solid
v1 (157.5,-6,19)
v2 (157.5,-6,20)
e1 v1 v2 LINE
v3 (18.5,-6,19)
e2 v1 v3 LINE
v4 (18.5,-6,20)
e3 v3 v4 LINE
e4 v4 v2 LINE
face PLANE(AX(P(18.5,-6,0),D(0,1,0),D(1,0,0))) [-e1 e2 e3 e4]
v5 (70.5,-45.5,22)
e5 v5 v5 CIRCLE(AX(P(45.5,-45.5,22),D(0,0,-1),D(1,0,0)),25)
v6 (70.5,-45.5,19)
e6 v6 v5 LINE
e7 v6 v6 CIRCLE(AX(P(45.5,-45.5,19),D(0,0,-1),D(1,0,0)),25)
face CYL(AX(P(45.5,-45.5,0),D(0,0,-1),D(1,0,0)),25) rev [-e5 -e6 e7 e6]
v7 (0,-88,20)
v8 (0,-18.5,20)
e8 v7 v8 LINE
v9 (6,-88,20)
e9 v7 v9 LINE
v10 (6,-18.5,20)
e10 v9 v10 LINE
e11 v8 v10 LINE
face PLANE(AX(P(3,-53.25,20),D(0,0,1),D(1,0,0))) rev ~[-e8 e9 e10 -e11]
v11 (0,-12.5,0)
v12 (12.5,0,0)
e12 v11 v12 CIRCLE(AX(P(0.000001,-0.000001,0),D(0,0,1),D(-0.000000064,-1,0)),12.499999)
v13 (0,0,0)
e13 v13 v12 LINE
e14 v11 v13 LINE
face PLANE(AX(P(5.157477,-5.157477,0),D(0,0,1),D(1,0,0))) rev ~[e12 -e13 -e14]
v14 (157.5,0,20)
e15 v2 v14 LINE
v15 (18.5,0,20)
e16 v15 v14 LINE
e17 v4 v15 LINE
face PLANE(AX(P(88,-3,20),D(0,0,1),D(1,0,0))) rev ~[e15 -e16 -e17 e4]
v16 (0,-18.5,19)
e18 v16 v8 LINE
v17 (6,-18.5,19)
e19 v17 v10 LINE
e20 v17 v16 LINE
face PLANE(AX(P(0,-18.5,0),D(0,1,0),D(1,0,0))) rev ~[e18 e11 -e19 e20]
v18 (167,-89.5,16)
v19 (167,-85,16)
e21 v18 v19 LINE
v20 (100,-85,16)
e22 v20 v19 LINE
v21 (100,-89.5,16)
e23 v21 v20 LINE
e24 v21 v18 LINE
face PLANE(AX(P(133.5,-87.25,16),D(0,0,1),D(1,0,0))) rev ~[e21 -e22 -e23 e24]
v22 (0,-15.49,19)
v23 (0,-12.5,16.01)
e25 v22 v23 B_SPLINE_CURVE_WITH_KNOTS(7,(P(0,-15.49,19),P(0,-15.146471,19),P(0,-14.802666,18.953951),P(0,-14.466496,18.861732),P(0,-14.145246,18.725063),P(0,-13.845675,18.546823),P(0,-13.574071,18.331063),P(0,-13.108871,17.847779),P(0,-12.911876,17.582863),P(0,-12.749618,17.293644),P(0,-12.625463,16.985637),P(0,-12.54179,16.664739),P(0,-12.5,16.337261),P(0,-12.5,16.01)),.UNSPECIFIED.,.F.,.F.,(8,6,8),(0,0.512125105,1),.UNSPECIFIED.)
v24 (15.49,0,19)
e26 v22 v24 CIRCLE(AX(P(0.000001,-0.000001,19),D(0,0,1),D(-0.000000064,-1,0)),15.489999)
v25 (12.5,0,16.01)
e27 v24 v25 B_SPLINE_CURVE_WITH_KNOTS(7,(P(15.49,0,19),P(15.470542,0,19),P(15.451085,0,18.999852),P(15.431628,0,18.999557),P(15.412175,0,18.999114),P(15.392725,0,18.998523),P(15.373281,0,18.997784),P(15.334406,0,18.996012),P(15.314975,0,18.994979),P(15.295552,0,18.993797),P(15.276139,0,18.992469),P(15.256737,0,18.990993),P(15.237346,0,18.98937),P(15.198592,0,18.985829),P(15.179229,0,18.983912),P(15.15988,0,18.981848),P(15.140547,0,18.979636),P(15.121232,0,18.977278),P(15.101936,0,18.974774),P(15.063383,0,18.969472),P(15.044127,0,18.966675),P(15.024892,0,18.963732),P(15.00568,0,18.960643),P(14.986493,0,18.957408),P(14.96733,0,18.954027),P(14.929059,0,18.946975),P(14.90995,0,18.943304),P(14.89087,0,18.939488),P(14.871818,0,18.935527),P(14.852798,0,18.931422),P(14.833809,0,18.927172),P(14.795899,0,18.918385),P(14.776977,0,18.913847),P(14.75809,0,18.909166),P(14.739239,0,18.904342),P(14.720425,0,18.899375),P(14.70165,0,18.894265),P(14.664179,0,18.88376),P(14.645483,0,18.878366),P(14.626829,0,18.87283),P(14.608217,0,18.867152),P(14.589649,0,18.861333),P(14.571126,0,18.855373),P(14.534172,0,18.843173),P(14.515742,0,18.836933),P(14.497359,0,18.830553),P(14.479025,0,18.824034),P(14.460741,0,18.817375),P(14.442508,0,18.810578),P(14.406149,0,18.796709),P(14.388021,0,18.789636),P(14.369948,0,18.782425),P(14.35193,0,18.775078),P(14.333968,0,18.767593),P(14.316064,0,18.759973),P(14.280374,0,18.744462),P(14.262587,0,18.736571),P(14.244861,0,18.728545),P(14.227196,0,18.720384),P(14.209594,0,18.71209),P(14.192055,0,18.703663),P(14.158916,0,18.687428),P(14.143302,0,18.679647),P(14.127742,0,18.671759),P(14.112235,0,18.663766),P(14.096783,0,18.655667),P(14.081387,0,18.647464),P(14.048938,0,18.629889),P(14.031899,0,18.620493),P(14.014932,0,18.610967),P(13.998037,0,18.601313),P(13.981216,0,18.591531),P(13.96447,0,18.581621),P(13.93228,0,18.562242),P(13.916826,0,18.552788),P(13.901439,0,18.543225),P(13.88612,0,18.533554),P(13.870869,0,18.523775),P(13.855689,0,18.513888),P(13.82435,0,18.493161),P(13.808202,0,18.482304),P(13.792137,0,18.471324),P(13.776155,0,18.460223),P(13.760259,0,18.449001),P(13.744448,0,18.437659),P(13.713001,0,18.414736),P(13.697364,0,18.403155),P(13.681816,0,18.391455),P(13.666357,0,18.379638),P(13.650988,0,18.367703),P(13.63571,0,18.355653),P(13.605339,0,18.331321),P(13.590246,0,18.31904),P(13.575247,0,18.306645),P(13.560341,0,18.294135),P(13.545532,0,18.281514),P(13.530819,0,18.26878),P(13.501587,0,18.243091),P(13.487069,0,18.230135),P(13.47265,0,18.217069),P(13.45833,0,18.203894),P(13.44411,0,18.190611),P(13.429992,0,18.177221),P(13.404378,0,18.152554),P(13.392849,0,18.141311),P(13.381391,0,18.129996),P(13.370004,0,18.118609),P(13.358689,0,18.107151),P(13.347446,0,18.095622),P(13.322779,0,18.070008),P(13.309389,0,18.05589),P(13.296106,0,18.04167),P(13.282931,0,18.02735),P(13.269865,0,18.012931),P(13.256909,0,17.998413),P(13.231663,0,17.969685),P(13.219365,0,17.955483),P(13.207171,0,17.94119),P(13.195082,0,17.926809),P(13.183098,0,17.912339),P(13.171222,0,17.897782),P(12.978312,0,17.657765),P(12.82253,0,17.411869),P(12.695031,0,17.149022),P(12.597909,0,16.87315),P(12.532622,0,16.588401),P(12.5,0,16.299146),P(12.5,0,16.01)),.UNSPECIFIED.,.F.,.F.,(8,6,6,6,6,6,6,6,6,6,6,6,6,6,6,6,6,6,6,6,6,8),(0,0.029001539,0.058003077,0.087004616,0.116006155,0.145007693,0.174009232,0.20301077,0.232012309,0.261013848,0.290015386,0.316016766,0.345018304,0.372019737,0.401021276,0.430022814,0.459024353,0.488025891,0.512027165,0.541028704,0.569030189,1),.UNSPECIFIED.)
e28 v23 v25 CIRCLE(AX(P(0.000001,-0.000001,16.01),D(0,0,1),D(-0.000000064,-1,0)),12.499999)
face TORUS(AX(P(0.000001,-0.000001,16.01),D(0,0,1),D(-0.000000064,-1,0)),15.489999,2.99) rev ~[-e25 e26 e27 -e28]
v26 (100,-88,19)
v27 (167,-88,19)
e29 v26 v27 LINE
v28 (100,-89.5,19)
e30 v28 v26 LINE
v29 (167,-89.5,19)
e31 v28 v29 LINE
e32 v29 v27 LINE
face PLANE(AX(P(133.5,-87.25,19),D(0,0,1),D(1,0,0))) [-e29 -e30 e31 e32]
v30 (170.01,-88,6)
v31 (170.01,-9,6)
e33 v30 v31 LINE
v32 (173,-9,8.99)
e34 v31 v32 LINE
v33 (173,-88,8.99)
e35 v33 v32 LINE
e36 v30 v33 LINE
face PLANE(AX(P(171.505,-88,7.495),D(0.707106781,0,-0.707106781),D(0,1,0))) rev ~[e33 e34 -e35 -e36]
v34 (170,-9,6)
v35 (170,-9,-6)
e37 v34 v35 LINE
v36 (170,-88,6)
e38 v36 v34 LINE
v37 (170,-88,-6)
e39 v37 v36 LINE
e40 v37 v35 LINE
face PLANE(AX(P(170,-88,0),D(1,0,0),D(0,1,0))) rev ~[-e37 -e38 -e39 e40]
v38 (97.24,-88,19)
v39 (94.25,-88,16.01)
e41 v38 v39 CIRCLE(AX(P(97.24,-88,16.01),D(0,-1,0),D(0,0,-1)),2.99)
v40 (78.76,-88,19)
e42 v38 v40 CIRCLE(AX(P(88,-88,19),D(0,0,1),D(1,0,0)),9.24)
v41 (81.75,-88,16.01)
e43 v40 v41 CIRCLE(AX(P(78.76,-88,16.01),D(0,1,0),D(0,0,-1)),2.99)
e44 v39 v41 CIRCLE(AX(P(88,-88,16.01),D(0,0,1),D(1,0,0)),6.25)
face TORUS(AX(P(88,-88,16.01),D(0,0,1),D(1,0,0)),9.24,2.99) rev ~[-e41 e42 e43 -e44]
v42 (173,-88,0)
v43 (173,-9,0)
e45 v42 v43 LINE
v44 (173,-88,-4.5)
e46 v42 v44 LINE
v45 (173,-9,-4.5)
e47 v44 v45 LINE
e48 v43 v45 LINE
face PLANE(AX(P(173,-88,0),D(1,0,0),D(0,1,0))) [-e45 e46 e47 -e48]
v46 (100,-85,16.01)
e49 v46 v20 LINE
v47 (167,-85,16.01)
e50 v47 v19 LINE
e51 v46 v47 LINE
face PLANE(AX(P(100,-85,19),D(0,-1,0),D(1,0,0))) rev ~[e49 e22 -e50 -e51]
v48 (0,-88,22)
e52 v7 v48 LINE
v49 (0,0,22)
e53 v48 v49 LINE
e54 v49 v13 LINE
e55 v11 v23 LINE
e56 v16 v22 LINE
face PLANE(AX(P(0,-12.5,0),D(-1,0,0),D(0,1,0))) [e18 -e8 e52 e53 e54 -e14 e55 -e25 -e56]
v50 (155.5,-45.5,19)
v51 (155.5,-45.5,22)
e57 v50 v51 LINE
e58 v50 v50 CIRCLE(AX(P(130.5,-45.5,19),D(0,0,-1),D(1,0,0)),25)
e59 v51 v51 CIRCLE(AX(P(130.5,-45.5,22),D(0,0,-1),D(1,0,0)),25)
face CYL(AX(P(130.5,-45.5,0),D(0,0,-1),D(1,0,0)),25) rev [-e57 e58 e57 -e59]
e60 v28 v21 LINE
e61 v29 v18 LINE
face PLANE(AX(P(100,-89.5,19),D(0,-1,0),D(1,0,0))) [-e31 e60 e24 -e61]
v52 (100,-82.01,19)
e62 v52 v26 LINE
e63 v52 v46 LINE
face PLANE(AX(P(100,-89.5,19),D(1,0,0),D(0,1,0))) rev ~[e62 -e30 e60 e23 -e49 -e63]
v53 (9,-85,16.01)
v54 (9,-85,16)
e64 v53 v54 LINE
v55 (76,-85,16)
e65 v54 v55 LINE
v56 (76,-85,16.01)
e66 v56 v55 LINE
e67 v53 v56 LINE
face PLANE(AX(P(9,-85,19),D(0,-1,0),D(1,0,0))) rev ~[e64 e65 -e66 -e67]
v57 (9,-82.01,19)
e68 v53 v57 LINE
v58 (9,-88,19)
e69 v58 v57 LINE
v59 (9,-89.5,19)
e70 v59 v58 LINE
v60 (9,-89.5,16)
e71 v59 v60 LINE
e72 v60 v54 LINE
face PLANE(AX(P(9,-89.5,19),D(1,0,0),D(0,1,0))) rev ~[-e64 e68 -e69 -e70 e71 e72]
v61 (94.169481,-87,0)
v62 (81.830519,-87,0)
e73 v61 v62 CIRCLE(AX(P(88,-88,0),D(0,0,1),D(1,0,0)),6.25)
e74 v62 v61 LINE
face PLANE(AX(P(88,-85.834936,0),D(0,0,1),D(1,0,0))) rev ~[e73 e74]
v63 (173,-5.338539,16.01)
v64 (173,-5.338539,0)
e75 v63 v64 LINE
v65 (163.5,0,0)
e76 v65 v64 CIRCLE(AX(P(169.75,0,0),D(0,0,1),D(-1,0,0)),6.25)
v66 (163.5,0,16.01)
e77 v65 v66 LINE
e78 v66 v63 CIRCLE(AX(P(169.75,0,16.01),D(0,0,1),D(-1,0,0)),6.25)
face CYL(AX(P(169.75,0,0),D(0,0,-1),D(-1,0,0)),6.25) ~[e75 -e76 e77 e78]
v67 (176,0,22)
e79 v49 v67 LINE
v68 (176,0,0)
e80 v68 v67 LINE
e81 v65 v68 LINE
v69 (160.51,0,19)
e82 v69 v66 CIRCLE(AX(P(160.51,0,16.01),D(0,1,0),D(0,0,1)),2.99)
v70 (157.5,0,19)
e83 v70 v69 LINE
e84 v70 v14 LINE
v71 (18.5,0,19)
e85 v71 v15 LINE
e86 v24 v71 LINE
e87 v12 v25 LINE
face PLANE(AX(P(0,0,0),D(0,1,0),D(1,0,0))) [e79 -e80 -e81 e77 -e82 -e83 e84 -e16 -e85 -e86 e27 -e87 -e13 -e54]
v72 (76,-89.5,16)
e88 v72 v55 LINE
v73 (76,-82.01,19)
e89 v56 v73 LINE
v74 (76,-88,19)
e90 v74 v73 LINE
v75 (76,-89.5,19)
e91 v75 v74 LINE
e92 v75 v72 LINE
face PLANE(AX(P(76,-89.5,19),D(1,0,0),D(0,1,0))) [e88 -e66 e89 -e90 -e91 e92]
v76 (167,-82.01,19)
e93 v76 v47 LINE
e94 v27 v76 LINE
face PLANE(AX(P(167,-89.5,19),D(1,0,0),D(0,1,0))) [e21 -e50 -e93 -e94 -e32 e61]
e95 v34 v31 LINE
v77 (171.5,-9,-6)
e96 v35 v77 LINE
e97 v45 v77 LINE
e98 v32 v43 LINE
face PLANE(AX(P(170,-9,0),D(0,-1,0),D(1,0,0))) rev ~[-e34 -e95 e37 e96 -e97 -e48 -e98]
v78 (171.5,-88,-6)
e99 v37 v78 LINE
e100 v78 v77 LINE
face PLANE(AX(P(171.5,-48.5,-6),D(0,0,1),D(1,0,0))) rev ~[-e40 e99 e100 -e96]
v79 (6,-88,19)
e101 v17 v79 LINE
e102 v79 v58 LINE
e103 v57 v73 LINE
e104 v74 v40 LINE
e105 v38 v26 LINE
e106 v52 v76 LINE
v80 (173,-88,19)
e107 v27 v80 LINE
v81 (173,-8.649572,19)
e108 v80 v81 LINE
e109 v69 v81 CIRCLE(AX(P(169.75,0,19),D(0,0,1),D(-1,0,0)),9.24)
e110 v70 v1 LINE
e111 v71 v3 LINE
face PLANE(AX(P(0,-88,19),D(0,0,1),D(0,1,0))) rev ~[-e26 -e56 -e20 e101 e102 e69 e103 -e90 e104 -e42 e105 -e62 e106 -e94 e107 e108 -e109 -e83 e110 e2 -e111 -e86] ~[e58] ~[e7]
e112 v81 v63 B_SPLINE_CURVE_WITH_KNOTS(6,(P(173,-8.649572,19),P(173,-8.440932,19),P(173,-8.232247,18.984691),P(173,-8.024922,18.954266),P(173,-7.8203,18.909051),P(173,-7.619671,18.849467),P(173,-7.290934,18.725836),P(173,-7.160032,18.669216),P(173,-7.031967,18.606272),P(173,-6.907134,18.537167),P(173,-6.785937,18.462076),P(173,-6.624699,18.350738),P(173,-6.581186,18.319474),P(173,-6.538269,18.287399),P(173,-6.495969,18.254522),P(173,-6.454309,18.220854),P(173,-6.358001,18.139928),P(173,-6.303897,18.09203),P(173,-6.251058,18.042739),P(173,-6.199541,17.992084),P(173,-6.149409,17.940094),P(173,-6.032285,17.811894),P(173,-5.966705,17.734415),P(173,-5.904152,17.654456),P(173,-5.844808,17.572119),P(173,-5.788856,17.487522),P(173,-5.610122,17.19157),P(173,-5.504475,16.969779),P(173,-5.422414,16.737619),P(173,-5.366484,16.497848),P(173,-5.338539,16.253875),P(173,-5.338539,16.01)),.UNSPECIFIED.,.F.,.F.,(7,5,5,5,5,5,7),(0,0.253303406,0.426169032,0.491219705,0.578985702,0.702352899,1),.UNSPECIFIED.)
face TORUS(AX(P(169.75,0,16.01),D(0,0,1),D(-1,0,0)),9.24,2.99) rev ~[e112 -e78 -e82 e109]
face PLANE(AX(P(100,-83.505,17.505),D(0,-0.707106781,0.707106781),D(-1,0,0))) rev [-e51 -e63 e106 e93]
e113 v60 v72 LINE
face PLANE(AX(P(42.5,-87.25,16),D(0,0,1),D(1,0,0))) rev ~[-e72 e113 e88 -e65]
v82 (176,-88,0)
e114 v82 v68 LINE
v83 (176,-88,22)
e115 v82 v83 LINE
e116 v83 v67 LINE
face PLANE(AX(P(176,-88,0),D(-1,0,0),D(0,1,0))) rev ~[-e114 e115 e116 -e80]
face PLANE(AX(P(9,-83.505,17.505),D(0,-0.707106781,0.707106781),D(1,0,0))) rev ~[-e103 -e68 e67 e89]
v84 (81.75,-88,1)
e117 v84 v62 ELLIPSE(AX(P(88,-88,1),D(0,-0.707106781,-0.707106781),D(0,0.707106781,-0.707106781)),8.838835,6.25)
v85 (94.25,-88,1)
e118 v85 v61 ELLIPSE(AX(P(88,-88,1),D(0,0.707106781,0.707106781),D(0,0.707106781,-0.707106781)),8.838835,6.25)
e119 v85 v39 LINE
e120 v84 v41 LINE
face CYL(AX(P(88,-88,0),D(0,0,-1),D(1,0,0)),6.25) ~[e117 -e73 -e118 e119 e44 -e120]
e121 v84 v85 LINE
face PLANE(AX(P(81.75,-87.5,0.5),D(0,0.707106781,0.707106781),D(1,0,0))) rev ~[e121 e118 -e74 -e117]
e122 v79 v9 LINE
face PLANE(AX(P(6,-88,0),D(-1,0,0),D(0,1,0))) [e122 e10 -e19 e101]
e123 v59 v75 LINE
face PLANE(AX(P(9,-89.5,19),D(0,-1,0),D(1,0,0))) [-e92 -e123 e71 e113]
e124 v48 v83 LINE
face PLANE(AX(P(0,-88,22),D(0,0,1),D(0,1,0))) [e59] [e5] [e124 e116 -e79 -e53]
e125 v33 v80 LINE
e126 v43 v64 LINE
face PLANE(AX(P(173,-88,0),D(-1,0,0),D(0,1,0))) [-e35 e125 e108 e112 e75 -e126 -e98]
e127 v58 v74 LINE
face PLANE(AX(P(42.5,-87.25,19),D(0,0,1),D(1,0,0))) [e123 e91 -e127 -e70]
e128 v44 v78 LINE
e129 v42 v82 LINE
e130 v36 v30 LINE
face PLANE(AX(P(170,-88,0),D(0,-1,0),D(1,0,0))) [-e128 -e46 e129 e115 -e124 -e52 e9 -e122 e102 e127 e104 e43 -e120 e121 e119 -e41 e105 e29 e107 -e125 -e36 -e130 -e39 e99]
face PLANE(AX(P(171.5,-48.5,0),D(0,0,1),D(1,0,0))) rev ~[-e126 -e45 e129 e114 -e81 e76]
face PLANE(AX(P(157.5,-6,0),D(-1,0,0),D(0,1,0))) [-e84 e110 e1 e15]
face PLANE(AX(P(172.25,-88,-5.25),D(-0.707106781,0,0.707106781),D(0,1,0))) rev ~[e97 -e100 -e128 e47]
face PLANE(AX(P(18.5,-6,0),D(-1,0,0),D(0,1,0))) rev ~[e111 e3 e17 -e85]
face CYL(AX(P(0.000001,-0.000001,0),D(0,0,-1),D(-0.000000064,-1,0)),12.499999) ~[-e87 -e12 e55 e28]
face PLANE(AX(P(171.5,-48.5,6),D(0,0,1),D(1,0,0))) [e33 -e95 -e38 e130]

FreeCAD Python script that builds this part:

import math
import FreeCAD as App
import Part
import Sketcher


def edges_at(feature, points):
    """Names of the edges that pass closest to the given points."""
    edges = feature.Shape.Edges
    near = lambda p: min(range(len(edges)), key=lambda i: edges[i].distToShape(Part.Vertex(*p))[0])
    return sorted({f"Edge{near(p) + 1}" for p in points})


def add_polygon(sketch, points):
    """Adds a closed chain of lines whose ends are joined by coincident constraints."""
    first, n = sketch.GeometryCount, len(points)
    for a, b in zip(points, points[1:] + points[:1]):
        sketch.addGeometry(Part.LineSegment(App.Vector(*a, 0), App.Vector(*b, 0)), False)
    for i in range(n):
        sketch.addConstraint(Sketcher.Constraint("Coincident", first + i, 2, first + (i + 1) % n, 1))

doc = App.newDocument("Part")
body = doc.addObject("PartDesign::Body", "Body")

sketch1 = doc.addObject("Sketcher::SketchObject", "Sketch")
body.addObject(sketch1)
sketch1.AttachmentSupport = (doc.YZ_Plane, [""])
sketch1.MapMode = "FlatFace"
add_polygon(sketch1, [(-88, 22), (-88, 19), (0, 19), (0, 22)])
sketch1.addConstraint([
    Sketcher.Constraint("Vertical", 0),
    Sketcher.Constraint("Horizontal", 1),
    Sketcher.Constraint("Vertical", 2),
    Sketcher.Constraint("Horizontal", 3),
    Sketcher.Constraint("PointOnObject", 1, 2, -2),
    Sketcher.Constraint("DistanceX", 1, 1, 1, 2, 88.0),
    Sketcher.Constraint("DistanceY", 0, 2, 0, 1, 3.0),
    Sketcher.Constraint("DistanceY", -1, 1, 0, 2, 19.0),
])
pad1 = doc.addObject("PartDesign::Pad", "Pad")
body.addObject(pad1)
pad1.Profile = sketch1
pad1.Length = 176

sketch2 = doc.addObject("Sketcher::SketchObject", "Sketch001")
body.addObject(sketch2)
sketch2.AttachmentSupport = (doc.XY_Plane, [""])
sketch2.MapMode = "FlatFace"
sketch2.addGeometry([
    Part.Circle(App.Vector(46, -46, 0), App.Vector(0, 0, 1), 25),
    Part.Circle(App.Vector(130, -46, 0), App.Vector(0, 0, 1), 25),
], False)
sketch2.addConstraint([
    Sketcher.Constraint("Equal", 0, 1),
    Sketcher.Constraint("Horizontal", 0, 3, 1, 3),
    Sketcher.Constraint("Diameter", 0, 50.0),
    Sketcher.Constraint("DistanceX", 0, 3, 1, 3, 85.0),
    Sketcher.Constraint("DistanceX", -1, 1, 0, 3, 45.5),
    Sketcher.Constraint("DistanceY", 0, 3, -1, 1, 45.5),
])
pocket1 = doc.addObject("PartDesign::Pocket", "Pocket")
body.addObject(pocket1)
pocket1.Profile = sketch2
pocket1.Type = "ThroughAll"
pocket1.Midplane = True

sketch3 = doc.addObject("Sketcher::SketchObject", "Sketch002")
body.addObject(sketch3)
sketch3.AttachmentSupport = (doc.XY_Plane, [""])
sketch3.MapMode = "FlatFace"
sketch3.addGeometry([
    Part.ArcOfCircle(Part.Circle(App.Vector(0, 0, 0), App.Vector(0, 0, 1), 12), math.radians(-90), math.radians(0)),
    Part.LineSegment(App.Vector(12, 0, 0), App.Vector(0, 0, 0)),
    Part.LineSegment(App.Vector(0, 0, 0), App.Vector(0, -12, 0)),
    Part.ArcOfCircle(Part.Circle(App.Vector(170, 0, 0), App.Vector(0, 0, 1), 6), math.radians(180), math.radians(360)),
    Part.LineSegment(App.Vector(176, 0, 0), App.Vector(164, 0, 0)),
    Part.ArcOfCircle(Part.Circle(App.Vector(88, -88, 0), App.Vector(0, 0, 1), 6), math.radians(0), math.radians(180)),
    Part.LineSegment(App.Vector(82, -88, 0), App.Vector(94, -88, 0)),
], False)
sketch3.addConstraint([
    Sketcher.Constraint("Coincident", 0, 2, 1, 1),
    Sketcher.Constraint("Coincident", 1, 2, 2, 1),
    Sketcher.Constraint("Coincident", 2, 2, 0, 1),
    Sketcher.Constraint("Coincident", 3, 1, 4, 2),
    Sketcher.Constraint("Coincident", 4, 1, 3, 2),
    Sketcher.Constraint("Coincident", 5, 1, 6, 2),
    Sketcher.Constraint("Coincident", 6, 1, 5, 2),
    Sketcher.Constraint("Horizontal", 1),
    Sketcher.Constraint("Vertical", 2),
    Sketcher.Constraint("Horizontal", 4),
    Sketcher.Constraint("Horizontal", 6),
    Sketcher.Constraint("Coincident", 0, 3, -1, 1),
    Sketcher.Constraint("Coincident", 1, 2, -1, 1),
    Sketcher.Constraint("Equal", 3, 5),
    Sketcher.Constraint("PointOnObject", 3, 3, -1),
    Sketcher.Constraint("PointOnObject", 3, 1, -1),
    Sketcher.Constraint("Equal", 1, 4),
    Sketcher.Constraint("Radius", 0, 12.499999),
    Sketcher.Constraint("DistanceX", -1, 1, 5, 3, 88.0),
    Sketcher.Constraint("DistanceY", 5, 3, -1, 1, 88.0),
    Sketcher.Constraint("DistanceX", -1, 1, 4, 1, 176.0),
    Sketcher.Constraint("DistanceY", 5, 1, -1, 1, 88.0),
])
pad2 = doc.addObject("PartDesign::Pad", "Pad001")
body.addObject(pad2)
pad2.Profile = sketch3
pad2.Length = 19

sketch4 = doc.addObject("Sketcher::SketchObject", "Sketch003")
body.addObject(sketch4)
sketch4.AttachmentSupport = (doc.XY_Plane, [""])
sketch4.MapMode = "FlatFace"
add_polygon(sketch4, [(18, 0), (18, -6), (158, -6), (158, 0)])
add_polygon(sketch4, [(0, -18), (0, -88), (6, -88), (6, -18)])
sketch4.addConstraint([
    Sketcher.Constraint("Vertical", 0),
    Sketcher.Constraint("Horizontal", 1),
    Sketcher.Constraint("Vertical", 2),
    Sketcher.Constraint("Horizontal", 3),
    Sketcher.Constraint("Vertical", 4),
    Sketcher.Constraint("Horizontal", 5),
    Sketcher.Constraint("Vertical", 6),
    Sketcher.Constraint("Horizontal", 7),
    Sketcher.Constraint("PointOnObject", 2, 2, -1),
    Sketcher.Constraint("PointOnObject", 4, 2, -2),
    Sketcher.Constraint("Equal", 7, 0),
    Sketcher.Constraint("DistanceX", 1, 1, 1, 2, 139.0),
    Sketcher.Constraint("DistanceX", 5, 1, 5, 2, 6.0),
    Sketcher.Constraint("DistanceY", 4, 2, 4, 1, 69.5),
    Sketcher.Constraint("DistanceY", 4, 2, -1, 1, 88.0),
    Sketcher.Constraint("DistanceX", -1, 1, 0, 2, 18.5),
])
pocket2 = doc.addObject("PartDesign::Pocket", "Pocket001")
body.addObject(pocket2)
pocket2.Profile = sketch4
pocket2.Length = 20
pocket2.Reversed = True

sketch5 = doc.addObject("Sketcher::SketchObject", "Sketch004")
body.addObject(sketch5)
sketch5.AttachmentSupport = (doc.XY_Plane, [""])
sketch5.MapMode = "FlatFace"
add_polygon(sketch5, [(173, 0), (173, -88), (176, -88), (176, 0)])
sketch5.addConstraint([
    Sketcher.Constraint("Vertical", 0),
    Sketcher.Constraint("Horizontal", 1),
    Sketcher.Constraint("Vertical", 2),
    Sketcher.Constraint("Horizontal", 3),
    Sketcher.Constraint("PointOnObject", 2, 2, -1),
    Sketcher.Constraint("DistanceX", 1, 1, 1, 2, 3.0),
    Sketcher.Constraint("DistanceY", 0, 2, 0, 1, 88.0),
    Sketcher.Constraint("DistanceX", -1, 1, 0, 2, 173.0),
])
pad3 = doc.addObject("PartDesign::Pad", "Pad002")
body.addObject(pad3)
pad3.Profile = sketch5
pad3.Length = 19

sketch6 = doc.addObject("Sketcher::SketchObject", "Sketch005")
body.addObject(sketch6)
sketch6.AttachmentSupport = (doc.XY_Plane, [""])
sketch6.MapMode = "FlatFace"
add_polygon(sketch6, [(170, -9), (170, -88), (173, -88), (173, -9)])
sketch6.addConstraint([
    Sketcher.Constraint("Vertical", 0),
    Sketcher.Constraint("Horizontal", 1),
    Sketcher.Constraint("Vertical", 2),
    Sketcher.Constraint("Horizontal", 3),
    Sketcher.Constraint("DistanceX", 1, 1, 1, 2, 3.0),
    Sketcher.Constraint("DistanceY", 0, 2, 0, 1, 79.0),
    Sketcher.Constraint("DistanceX", -1, 1, 0, 2, 170.0),
    Sketcher.Constraint("DistanceY", 0, 2, -1, 1, 88.0),
])
pad4 = doc.addObject("PartDesign::Pad", "Pad003")
body.addObject(pad4)
pad4.Profile = sketch6
pad4.Type = "TwoLengths"
pad4.Length = 6
pad4.Length2 = 6
doc.recompute()

chamfer = doc.addObject("PartDesign::Chamfer", "Chamfer")
body.addObject(chamfer)
chamfer.Base = (pad4, edges_at(pad4, [(173, -48.5, 6)]))
chamfer.Size = 2.99
doc.recompute()

chamfer2 = doc.addObject("PartDesign::Chamfer", "Chamfer001")
body.addObject(chamfer2)
chamfer2.Base = (chamfer, edges_at(chamfer, [(173, -48.5, -6)]))
chamfer2.Size = 1.5
doc.recompute()

fillet = doc.addObject("PartDesign::Fillet", "Fillet")
body.addObject(fillet)
fillet.Base = (chamfer2, edges_at(chamfer2, [(166.688, -5.449, 19), (88, -81.75, 19), (8.839, -8.839, 19)]))
fillet.Radius = 2.99

sketch7 = doc.addObject("Sketcher::SketchObject", "Sketch006")
body.addObject(sketch7)
sketch7.AttachmentSupport = (doc.XY_Plane, [""])
sketch7.MapMode = "FlatFace"
sketch7.AttachmentOffset = App.Placement(App.Vector(0, 0, 19), App.Rotation())
add_polygon(sketch7, [(9, -85), (9, -89.5), (76, -89.5), (76, -85)])
add_polygon(sketch7, [(100, -85), (100, -89.5), (167, -89.5), (167, -85)])
sketch7.addConstraint([
    Sketcher.Constraint("Vertical", 0),
    Sketcher.Constraint("Horizontal", 1),
    Sketcher.Constraint("Vertical", 2),
    Sketcher.Constraint("Horizontal", 3),
    Sketcher.Constraint("Vertical", 4),
    Sketcher.Constraint("Horizontal", 5),
    Sketcher.Constraint("Vertical", 6),
    Sketcher.Constraint("Horizontal", 7),
    Sketcher.Constraint("Horizontal", 1, 2, 4, 2),
    Sketcher.Constraint("Horizontal", 3, 2, 6, 2),
    Sketcher.Constraint("Equal", 3, 5),
    Sketcher.Constraint("DistanceX", 1, 1, 1, 2, 67.0),
    Sketcher.Constraint("DistanceY", 0, 2, 0, 1, 4.5),
    Sketcher.Constraint("DistanceX", -1, 1, 0, 2, 9.0),
    Sketcher.Constraint("DistanceY", 2, 2, -1, 1, 85.0),
    Sketcher.Constraint("DistanceX", -1, 1, 4, 2, 100.0),
])
pad5 = doc.addObject("PartDesign::Pad", "Pad004")
body.addObject(pad5)
pad5.Profile = sketch7
pad5.Length = 3
pad5.Reversed = True
doc.recompute()

chamfer3 = doc.addObject("PartDesign::Chamfer", "Chamfer002")
body.addObject(chamfer3)
chamfer3.Base = (pad5, edges_at(pad5, [(133.5, -85, 19), (42.5, -85, 19)]))
chamfer3.Size = 2.99
doc.recompute()

chamfer4 = doc.addObject("PartDesign::Chamfer", "Chamfer003")
body.addObject(chamfer4)
chamfer4.Base = (chamfer3, edges_at(chamfer3, [(88, -88, 0)]))
chamfer4.Size = 1

doc.recompute()
